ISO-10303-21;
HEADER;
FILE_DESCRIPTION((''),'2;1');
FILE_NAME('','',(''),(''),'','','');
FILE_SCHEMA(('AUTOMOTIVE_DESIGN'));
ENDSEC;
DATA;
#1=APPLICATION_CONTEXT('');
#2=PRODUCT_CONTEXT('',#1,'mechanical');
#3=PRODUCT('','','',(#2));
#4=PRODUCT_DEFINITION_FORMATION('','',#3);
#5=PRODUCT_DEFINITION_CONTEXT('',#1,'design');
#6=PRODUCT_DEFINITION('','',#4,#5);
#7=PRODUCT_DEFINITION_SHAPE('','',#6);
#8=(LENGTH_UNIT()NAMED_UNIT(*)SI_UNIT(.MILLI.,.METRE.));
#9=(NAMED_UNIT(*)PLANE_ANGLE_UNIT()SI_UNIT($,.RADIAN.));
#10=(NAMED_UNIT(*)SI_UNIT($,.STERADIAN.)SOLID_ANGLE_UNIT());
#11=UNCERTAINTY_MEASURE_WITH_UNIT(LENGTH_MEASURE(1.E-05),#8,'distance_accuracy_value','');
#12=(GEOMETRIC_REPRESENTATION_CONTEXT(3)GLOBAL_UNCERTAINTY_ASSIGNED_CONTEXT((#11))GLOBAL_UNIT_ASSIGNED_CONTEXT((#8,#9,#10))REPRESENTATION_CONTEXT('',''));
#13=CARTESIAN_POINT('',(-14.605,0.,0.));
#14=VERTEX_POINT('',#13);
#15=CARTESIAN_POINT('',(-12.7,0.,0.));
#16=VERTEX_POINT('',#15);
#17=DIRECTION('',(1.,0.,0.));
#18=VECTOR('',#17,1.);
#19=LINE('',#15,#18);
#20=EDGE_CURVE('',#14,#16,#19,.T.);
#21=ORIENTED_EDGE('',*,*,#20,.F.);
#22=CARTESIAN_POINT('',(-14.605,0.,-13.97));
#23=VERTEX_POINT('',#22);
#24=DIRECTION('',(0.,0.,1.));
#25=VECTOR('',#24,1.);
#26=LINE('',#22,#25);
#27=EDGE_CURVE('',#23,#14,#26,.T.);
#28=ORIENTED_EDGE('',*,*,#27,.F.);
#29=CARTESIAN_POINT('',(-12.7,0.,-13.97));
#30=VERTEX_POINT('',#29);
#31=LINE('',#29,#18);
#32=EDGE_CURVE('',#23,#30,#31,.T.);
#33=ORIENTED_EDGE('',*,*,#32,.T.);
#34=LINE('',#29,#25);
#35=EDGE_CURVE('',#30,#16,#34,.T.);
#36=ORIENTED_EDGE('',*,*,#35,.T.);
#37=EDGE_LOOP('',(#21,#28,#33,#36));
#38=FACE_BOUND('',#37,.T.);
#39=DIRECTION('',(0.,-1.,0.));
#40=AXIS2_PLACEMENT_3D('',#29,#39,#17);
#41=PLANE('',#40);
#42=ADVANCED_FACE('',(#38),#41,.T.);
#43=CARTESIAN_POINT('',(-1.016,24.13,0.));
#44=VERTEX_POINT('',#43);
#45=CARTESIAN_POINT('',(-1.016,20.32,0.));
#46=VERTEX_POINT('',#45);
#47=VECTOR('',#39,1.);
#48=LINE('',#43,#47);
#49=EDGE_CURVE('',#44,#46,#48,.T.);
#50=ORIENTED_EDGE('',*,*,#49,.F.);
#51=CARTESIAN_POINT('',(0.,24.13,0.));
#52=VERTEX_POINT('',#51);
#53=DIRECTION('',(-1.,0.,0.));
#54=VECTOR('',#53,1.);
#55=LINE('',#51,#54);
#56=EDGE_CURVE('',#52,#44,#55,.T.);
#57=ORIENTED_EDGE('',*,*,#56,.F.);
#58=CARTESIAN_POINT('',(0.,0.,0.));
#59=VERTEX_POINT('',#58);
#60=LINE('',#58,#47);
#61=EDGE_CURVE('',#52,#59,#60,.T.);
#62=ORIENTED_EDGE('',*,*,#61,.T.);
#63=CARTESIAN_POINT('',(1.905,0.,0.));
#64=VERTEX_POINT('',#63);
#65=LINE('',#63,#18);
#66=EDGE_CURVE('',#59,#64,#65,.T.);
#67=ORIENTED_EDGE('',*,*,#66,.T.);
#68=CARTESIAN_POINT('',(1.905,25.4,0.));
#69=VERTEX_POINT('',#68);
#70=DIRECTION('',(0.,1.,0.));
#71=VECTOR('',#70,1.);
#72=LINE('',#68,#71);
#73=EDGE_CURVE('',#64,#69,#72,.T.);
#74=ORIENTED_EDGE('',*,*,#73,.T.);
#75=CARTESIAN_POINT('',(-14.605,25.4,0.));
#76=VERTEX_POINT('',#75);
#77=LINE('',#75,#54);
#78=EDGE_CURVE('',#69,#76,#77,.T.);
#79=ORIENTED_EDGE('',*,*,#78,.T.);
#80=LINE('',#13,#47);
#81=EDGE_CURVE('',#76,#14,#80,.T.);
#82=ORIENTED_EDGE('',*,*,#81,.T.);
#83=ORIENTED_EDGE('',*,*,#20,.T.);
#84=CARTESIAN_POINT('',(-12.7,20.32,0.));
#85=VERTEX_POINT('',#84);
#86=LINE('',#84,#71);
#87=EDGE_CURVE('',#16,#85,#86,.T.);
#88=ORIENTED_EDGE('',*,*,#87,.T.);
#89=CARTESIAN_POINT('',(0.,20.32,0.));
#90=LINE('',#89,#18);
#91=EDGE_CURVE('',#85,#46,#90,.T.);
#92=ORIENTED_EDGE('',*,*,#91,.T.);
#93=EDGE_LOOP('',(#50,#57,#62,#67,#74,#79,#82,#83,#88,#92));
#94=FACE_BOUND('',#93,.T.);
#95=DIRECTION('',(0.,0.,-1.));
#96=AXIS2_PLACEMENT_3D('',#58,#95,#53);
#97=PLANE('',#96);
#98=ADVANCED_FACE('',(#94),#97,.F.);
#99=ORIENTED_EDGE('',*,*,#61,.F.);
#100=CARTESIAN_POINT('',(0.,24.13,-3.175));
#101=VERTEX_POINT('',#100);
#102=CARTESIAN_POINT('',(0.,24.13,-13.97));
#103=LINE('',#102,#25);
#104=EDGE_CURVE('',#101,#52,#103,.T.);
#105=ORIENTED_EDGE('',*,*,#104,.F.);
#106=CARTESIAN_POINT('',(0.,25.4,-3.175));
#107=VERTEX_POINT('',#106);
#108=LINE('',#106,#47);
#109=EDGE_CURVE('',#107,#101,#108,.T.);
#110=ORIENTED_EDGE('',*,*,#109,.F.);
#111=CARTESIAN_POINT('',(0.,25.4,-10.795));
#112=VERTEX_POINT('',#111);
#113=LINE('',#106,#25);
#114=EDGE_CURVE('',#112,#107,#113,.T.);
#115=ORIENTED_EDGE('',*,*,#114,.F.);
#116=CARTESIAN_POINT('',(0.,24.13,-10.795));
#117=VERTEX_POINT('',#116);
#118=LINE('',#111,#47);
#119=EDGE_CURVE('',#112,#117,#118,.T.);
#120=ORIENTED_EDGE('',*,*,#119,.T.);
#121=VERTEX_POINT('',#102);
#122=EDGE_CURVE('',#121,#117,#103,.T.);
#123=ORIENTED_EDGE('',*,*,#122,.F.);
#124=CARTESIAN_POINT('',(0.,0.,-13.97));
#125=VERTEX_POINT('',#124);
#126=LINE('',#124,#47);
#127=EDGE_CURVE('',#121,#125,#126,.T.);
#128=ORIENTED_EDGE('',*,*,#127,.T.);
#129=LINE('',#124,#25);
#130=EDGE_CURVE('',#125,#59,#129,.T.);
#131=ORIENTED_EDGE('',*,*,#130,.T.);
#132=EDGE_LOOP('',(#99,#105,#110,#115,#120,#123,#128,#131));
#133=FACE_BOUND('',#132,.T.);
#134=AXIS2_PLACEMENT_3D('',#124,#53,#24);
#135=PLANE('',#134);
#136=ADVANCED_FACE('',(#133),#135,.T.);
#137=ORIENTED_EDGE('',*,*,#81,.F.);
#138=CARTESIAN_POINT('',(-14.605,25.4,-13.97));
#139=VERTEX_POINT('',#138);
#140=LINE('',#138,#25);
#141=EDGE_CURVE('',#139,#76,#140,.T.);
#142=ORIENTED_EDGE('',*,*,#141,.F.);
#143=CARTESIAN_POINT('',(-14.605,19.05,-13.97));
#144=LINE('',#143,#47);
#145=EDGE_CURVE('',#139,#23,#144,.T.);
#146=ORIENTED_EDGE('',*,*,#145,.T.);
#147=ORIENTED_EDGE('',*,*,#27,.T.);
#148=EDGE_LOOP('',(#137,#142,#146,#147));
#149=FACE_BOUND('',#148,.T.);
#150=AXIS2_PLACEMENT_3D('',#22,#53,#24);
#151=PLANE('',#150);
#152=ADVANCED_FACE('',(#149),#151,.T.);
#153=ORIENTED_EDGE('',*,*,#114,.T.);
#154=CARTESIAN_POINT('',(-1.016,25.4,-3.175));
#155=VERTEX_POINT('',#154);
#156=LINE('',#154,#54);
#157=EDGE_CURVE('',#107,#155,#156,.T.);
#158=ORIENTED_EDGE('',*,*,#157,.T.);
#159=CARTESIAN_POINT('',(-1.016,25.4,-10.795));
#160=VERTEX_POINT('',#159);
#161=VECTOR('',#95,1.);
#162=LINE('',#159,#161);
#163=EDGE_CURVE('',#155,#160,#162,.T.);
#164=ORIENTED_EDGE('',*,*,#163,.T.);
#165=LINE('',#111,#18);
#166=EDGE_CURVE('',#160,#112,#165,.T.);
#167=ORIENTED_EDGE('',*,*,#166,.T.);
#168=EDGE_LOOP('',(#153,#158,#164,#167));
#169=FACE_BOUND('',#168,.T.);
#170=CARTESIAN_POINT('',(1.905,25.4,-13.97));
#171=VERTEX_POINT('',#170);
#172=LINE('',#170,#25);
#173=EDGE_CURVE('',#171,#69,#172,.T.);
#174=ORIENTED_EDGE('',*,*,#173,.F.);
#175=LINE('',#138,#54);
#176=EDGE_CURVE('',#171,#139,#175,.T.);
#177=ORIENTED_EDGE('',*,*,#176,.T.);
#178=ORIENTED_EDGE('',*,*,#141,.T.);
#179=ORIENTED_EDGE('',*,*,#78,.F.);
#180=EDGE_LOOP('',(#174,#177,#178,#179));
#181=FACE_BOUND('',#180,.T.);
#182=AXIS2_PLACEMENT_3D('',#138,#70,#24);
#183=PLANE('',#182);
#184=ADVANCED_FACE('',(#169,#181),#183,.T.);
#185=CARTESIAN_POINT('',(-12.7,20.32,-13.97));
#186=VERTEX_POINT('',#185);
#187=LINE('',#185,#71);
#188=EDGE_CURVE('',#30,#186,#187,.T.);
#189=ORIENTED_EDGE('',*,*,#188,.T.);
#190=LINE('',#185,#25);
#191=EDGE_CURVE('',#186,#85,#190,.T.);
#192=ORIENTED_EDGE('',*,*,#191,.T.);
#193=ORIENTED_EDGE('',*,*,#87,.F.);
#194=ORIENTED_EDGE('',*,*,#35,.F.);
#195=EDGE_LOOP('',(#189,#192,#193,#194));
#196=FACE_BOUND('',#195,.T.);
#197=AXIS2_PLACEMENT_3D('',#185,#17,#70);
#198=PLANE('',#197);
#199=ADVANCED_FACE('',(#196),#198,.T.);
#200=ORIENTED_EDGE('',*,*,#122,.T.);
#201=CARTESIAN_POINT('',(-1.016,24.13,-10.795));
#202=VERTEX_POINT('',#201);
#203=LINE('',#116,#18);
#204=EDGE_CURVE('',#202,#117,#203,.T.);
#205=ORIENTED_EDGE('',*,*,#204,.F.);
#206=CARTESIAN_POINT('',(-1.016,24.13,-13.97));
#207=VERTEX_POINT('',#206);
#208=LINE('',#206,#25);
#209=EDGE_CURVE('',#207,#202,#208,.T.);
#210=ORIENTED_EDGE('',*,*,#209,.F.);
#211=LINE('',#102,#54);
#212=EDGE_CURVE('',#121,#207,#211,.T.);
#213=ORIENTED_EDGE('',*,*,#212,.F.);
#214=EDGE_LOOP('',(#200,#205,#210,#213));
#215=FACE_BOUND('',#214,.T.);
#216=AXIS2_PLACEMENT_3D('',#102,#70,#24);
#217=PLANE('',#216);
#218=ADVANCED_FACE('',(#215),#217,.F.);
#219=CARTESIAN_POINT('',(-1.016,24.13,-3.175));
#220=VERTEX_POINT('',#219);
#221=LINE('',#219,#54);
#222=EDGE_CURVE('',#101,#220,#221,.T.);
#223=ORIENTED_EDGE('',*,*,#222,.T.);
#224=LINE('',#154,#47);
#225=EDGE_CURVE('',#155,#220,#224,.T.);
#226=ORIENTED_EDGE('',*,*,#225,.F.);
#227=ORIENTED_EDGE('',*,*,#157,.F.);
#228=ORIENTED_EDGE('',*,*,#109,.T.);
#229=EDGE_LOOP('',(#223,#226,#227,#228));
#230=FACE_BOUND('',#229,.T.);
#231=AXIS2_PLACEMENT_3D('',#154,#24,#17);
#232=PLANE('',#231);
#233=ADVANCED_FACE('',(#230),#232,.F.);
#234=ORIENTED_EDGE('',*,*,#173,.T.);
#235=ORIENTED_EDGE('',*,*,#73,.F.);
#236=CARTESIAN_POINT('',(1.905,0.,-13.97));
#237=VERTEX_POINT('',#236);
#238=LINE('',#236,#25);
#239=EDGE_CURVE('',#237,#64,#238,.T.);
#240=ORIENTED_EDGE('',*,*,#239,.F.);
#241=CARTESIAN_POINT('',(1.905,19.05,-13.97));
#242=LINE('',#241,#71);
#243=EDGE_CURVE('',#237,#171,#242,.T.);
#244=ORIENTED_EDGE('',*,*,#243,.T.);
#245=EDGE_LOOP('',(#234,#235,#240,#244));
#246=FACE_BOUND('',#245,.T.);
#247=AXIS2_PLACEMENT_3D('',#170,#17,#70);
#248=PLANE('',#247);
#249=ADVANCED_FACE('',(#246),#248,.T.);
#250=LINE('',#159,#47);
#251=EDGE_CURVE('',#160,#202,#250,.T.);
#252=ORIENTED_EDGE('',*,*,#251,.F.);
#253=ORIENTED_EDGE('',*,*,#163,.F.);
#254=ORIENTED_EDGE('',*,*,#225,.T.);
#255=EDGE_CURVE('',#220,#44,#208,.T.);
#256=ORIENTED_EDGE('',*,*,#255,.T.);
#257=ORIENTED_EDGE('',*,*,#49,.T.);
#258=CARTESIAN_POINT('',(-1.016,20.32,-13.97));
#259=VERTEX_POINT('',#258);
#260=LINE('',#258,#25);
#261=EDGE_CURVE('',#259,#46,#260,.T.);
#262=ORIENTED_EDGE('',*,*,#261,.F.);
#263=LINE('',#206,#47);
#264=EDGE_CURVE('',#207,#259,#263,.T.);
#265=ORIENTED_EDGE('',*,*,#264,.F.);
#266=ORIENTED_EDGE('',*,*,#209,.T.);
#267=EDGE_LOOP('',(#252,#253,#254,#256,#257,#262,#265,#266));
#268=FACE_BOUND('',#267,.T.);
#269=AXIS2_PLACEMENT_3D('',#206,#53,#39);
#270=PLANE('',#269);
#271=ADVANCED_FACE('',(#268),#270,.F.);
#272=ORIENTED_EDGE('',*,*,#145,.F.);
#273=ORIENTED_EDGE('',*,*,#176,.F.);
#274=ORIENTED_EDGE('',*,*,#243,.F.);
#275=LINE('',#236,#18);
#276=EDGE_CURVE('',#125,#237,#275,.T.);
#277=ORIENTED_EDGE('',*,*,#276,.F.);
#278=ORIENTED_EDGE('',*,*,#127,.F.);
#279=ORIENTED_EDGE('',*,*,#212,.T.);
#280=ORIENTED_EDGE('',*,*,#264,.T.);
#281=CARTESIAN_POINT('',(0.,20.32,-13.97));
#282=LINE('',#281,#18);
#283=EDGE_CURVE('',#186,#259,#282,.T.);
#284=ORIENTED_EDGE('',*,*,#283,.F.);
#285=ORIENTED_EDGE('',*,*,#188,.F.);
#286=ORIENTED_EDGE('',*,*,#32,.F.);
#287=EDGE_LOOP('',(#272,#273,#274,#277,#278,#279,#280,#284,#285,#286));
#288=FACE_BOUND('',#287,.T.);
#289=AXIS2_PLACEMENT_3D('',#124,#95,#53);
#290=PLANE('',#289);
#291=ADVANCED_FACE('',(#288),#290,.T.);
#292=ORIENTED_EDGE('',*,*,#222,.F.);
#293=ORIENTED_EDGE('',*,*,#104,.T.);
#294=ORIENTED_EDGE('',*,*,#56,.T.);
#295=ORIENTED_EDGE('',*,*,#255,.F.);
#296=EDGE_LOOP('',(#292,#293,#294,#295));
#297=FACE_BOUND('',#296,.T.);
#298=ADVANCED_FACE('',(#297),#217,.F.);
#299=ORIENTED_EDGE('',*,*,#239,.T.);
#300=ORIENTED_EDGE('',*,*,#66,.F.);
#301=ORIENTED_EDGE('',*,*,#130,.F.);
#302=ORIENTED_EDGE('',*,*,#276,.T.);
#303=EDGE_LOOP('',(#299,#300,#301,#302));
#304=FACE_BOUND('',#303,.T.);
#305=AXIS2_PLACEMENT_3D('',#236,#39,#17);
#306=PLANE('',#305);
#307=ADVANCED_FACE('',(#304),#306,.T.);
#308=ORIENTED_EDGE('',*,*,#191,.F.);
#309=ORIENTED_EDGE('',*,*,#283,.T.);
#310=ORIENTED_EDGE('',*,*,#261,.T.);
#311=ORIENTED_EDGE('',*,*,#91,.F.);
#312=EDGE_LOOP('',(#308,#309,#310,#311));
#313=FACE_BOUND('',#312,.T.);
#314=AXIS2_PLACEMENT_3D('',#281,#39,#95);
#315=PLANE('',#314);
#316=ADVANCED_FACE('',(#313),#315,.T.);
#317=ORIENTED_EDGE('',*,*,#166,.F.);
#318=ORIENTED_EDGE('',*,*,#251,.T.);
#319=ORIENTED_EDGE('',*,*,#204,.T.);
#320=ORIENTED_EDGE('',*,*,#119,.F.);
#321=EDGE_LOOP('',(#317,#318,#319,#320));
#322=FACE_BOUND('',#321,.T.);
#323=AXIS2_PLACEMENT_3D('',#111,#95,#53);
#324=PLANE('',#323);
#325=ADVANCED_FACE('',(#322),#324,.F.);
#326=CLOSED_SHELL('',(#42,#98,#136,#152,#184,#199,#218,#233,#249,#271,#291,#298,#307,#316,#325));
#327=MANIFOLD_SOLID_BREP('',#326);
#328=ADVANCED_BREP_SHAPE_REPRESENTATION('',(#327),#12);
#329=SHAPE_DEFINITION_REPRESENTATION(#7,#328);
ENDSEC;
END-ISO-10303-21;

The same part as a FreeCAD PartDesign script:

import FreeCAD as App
import Part
import Sketcher
from FreeCAD import Vector
Q = App.Units.Quantity

doc = App.newDocument("Part")
body = doc.addObject("PartDesign::Body", "Body")

# Sketch on XY plane
sketch1 = body.newObject("Sketcher::SketchObject", "Sketch")
sketch1.AttachmentSupport = (doc.getObject("XY_Plane"), [""])
sketch1.MapMode = "FlatFace"
sketch1.addGeometry([
    Part.LineSegment(Vector(0, 20.3, 0), Vector(0, 0, 0)),  # 0
    Part.LineSegment(Vector(0, 0, 0), Vector(1.9, 0, 0)),  # 1
    Part.LineSegment(Vector(1.9, 0, 0), Vector(1.9, 25.4, 0)),  # 2
    Part.LineSegment(Vector(1.9, 25.4, 0), Vector(-14.6, 25.4, 0)),  # 3
    Part.LineSegment(Vector(-14.6, 25.4, 0), Vector(-14.6, 0, 0)),  # 4
    Part.LineSegment(Vector(-14.6, 0, 0), Vector(-12.7, 0, 0)),  # 5
    Part.LineSegment(Vector(-12.7, 0, 0), Vector(-12.7, 20.3, 0)),  # 6
    Part.LineSegment(Vector(-12.7, 20.3, 0), Vector(0, 20.3, 0)),  # 7
], False)
sketch1.addConstraint([
    Sketcher.Constraint("Coincident", 0, 2, 1, 1),
    Sketcher.Constraint("Coincident", 1, 2, 2, 1),
    Sketcher.Constraint("Coincident", 2, 2, 3, 1),
    Sketcher.Constraint("Coincident", 3, 2, 4, 1),
    Sketcher.Constraint("Coincident", 4, 2, 5, 1),
    Sketcher.Constraint("Coincident", 5, 2, 6, 1),
    Sketcher.Constraint("Coincident", 6, 2, 7, 1),
    Sketcher.Constraint("Coincident", 7, 2, 0, 1),
    Sketcher.Constraint("Vertical", 0),
    Sketcher.Constraint("Horizontal", 1),
    Sketcher.Constraint("Vertical", 2),
    Sketcher.Constraint("Horizontal", 3),
    Sketcher.Constraint("Vertical", 4),
    Sketcher.Constraint("Horizontal", 5),
    Sketcher.Constraint("Vertical", 6),
    Sketcher.Constraint("Horizontal", 7),
    Sketcher.Constraint("Coincident", 0, 2, -1, 1),
    Sketcher.Constraint("PointOnObject", 4, 2, -1),
    Sketcher.Constraint("Equal", 1, 5),
    Sketcher.Constraint("DistanceY", 2, 1, 2, 2, Q("1 in")),
    Sketcher.Constraint("DistanceX", 7, 1, 7, 2, Q("0.5 in")),
    Sketcher.Constraint("DistanceY", 0, 2, 0, 1, Q("0.8 in")),
    Sketcher.Constraint("DistanceX", 3, 2, 3, 1, Q("0.65 in")),
])
pad1 = body.newObject("PartDesign::Pad", "Pad")
pad1.Profile = sketch1
pad1.Length = Q("0.55 in")
pad1.Reversed = True

# Sketch on XY plane
sketch2 = body.newObject("Sketcher::SketchObject", "Sketch001")
sketch2.AttachmentSupport = (doc.getObject("XY_Plane"), [""])
sketch2.MapMode = "FlatFace"
sketch2.addGeometry([
    Part.LineSegment(Vector(-1, 24.1, 0), Vector(-1, 20.3, 0)),
    Part.LineSegment(Vector(-1, 20.3, 0), Vector(0, 20.3, 0)),
    Part.LineSegment(Vector(0, 20.3, 0), Vector(0, 24.1, 0)),
    Part.LineSegment(Vector(0, 24.1, 0), Vector(-1, 24.1, 0)),
], False)
sketch2.addConstraint([
    Sketcher.Constraint("Coincident", 0, 2, 1, 1),
    Sketcher.Constraint("Coincident", 1, 2, 2, 1),
    Sketcher.Constraint("Coincident", 2, 2, 3, 1),
    Sketcher.Constraint("Coincident", 3, 2, 0, 1),
    Sketcher.Constraint("Vertical", 0),
    Sketcher.Constraint("Horizontal", 1),
    Sketcher.Constraint("Vertical", 2),
    Sketcher.Constraint("Horizontal", 3),
    Sketcher.Constraint("PointOnObject", 1, 2, -2),
    Sketcher.Constraint("DistanceX", 1, 1, 1, 2, Q("0.04 in")),
    Sketcher.Constraint("DistanceY", 0, 2, 0, 1, Q("0.15 in")),
    Sketcher.Constraint("DistanceY", -1, 1, 0, 2, Q("0.8 in")),
])
pocket1 = body.newObject("PartDesign::Pocket", "Pocket")
pocket1.Profile = sketch2
pocket1.Type = "ThroughAll"

# Sketch on XZ plane
sketch3 = body.newObject("Sketcher::SketchObject", "Sketch002")
sketch3.AttachmentSupport = (doc.getObject("XZ_Plane"), [""])
sketch3.MapMode = "FlatFace"
sketch3.AttachmentOffset = App.Placement(Vector(0, 0, -0.95 * 25.4), App.Rotation())
sketch3.addGeometry([
    Part.LineSegment(Vector(-1, -3.2, 0), Vector(-1, -10.8, 0)),
    Part.LineSegment(Vector(-1, -10.8, 0), Vector(0, -10.8, 0)),
    Part.LineSegment(Vector(0, -10.8, 0), Vector(0, -3.2, 0)),
    Part.LineSegment(Vector(0, -3.2, 0), Vector(-1, -3.2, 0)),
], False)
sketch3.addConstraint([
    Sketcher.Constraint("Coincident", 0, 2, 1, 1),
    Sketcher.Constraint("Coincident", 1, 2, 2, 1),
    Sketcher.Constraint("Coincident", 2, 2, 3, 1),
    Sketcher.Constraint("Coincident", 3, 2, 0, 1),
    Sketcher.Constraint("Vertical", 0),
    Sketcher.Constraint("Horizontal", 1),
    Sketcher.Constraint("Vertical", 2),
    Sketcher.Constraint("Horizontal", 3),
    Sketcher.Constraint("PointOnObject", 1, 2, -2),
    Sketcher.Constraint("DistanceY", 0, 2, 0, 1, Q("0.3 in")),
    Sketcher.Constraint("DistanceX", 1, 1, 1, 2, Q("0.04 in")),
    Sketcher.Constraint("DistanceY", 0, 2, -1, 1, Q("0.425 in")),
])
pocket2 = body.newObject("PartDesign::Pocket", "Pocket001")
pocket2.Profile = sketch3
pocket2.Type = "ThroughAll"

doc.recompute()
